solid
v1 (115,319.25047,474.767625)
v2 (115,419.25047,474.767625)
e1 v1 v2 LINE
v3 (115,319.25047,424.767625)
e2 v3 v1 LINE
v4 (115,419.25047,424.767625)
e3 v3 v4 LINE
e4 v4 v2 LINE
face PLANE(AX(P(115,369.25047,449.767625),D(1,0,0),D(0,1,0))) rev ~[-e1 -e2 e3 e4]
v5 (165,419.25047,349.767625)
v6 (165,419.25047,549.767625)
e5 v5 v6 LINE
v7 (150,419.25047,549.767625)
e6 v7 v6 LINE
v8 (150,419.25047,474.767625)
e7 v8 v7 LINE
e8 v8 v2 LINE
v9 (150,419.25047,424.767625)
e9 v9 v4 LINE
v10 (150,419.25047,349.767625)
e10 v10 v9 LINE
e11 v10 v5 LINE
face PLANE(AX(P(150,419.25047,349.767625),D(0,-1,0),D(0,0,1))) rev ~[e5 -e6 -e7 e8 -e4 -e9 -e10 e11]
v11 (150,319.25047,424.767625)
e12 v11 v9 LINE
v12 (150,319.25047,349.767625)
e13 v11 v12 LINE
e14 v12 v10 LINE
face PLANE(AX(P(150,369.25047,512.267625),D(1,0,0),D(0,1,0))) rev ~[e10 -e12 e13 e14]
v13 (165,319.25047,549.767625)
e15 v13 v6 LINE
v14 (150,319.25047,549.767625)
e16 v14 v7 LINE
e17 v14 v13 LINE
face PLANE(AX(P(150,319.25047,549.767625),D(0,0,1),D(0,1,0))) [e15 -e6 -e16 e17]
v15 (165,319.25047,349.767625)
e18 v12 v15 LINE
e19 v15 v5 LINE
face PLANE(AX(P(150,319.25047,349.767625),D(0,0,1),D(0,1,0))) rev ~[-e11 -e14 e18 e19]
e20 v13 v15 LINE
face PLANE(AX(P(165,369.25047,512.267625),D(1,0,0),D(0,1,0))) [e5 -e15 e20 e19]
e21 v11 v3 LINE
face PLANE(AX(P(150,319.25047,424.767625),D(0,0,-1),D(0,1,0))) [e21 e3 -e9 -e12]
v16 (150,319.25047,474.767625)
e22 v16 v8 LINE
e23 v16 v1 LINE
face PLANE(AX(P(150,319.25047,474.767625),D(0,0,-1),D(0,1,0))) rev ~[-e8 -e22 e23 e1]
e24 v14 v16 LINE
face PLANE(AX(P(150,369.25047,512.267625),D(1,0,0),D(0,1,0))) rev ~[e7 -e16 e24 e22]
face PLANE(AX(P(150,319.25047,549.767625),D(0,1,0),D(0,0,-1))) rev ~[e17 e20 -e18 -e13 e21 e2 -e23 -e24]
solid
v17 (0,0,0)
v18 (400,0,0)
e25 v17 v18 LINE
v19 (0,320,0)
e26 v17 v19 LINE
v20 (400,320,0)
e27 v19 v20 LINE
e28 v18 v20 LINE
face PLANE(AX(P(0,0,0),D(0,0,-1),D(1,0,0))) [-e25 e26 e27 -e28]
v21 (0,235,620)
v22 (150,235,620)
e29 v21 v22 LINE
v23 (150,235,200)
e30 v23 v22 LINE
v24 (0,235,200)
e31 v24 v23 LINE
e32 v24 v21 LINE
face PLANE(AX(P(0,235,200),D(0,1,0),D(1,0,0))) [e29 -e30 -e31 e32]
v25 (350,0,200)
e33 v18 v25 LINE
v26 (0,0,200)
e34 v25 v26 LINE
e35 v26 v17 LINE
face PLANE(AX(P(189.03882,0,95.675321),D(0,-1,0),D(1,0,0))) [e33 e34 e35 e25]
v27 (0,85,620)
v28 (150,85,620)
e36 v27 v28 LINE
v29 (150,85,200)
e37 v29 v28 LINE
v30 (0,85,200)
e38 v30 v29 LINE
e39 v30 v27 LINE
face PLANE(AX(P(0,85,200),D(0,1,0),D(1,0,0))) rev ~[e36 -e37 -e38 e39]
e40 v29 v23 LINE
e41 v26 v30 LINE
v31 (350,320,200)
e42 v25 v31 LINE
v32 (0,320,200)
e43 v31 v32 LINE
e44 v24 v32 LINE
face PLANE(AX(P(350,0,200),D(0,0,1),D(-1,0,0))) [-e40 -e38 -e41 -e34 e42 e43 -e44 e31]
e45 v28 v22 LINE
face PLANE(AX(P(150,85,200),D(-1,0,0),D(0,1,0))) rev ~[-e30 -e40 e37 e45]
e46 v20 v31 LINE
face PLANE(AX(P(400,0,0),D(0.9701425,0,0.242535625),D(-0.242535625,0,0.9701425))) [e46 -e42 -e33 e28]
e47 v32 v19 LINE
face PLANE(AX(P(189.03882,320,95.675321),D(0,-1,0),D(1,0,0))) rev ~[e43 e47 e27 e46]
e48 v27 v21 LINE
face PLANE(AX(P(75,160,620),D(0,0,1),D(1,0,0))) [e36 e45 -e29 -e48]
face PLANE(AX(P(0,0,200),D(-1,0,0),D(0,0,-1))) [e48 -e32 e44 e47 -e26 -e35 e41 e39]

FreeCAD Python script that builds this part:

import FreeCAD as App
import Part
import Sketcher
Q = App.Units.Quantity


def add_polygon(sketch, points):
    """Adds a closed chain of lines whose ends are joined by coincident constraints."""
    first, n = sketch.GeometryCount, len(points)
    for a, b in zip(points, points[1:] + points[:1]):
        sketch.addGeometry(Part.LineSegment(App.Vector(*a, 0), App.Vector(*b, 0)), False)
    for i in range(n):
        sketch.addConstraint(Sketcher.Constraint("Coincident", first + i, 2, first + (i + 1) % n, 1))

doc = App.newDocument("Part")
body = doc.addObject("PartDesign::Body", "Body")

# Sketch on XZ plane
sketch1 = body.newObject("Sketcher::SketchObject", "Sketch")
sketch1.AttachmentSupport = (doc.getObject("XZ_Plane"), [""])
sketch1.MapMode = "FlatFace"
add_polygon(sketch1, [(0, 200), (0, 0), (400, 0), (350, 200)])  # lines 0-3
sketch1.addConstraint([
    Sketcher.Constraint("Vertical", 0),
    Sketcher.Constraint("Horizontal", 1),
    Sketcher.Constraint("Horizontal", 3),
    Sketcher.Constraint("Coincident", 0, 2, -1, 1),
    Sketcher.Constraint("DistanceX", 1, 1, 1, 2, Q("400 mm")),
    Sketcher.Constraint("DistanceX", 3, 2, 3, 1, Q("350 mm")),
    Sketcher.Constraint("DistanceY", 0, 2, 0, 1, Q("200 mm")),
])
pad1 = body.newObject("PartDesign::Pad", "Pad")
pad1.Profile = sketch1
pad1.Length = 320
pad1.Reversed = True

# Sketch on XY plane
sketch2 = body.newObject("Sketcher::SketchObject", "Sketch001")
sketch2.AttachmentSupport = (doc.getObject("XY_Plane"), [""])
sketch2.MapMode = "FlatFace"
sketch2.AttachmentOffset = App.Placement(App.Vector(0, 0, 200), App.Rotation())
add_polygon(sketch2, [(0, 235), (0, 85), (150, 85), (150, 235)])  # lines 0-3
sketch2.addConstraint([
    Sketcher.Constraint("Vertical", 0),
    Sketcher.Constraint("Horizontal", 1),
    Sketcher.Constraint("Vertical", 2),
    Sketcher.Constraint("Horizontal", 3),
    Sketcher.Constraint("PointOnObject", 0, 2, -2),
    Sketcher.Constraint("Equal", 3, 0),
    Sketcher.Constraint("DistanceX", 1, 1, 1, 2, Q("150 mm")),
    Sketcher.Constraint("DistanceY", -1, 1, 0, 2, Q("85 mm")),
])
pad2 = body.newObject("PartDesign::Pad", "Pad001")
pad2.Profile = sketch2
pad2.Length = 420
body2 = doc.addObject("PartDesign::Body", "Body001")

# Sketch on YZ plane
sketch3 = body2.newObject("Sketcher::SketchObject", "Sketch002")
sketch3.AttachmentSupport = (doc.getObject("YZ_Plane001"), [""])
sketch3.MapMode = "FlatFace"
sketch3.AttachmentOffset = App.Placement(App.Vector(0, 0, 150), App.Rotation())
add_polygon(sketch3, [(319, 550), (319, 350), (419, 350), (419, 550)])  # lines 0-3
sketch3.addConstraint([
    Sketcher.Constraint("Vertical", 0),
    Sketcher.Constraint("Horizontal", 1),
    Sketcher.Constraint("Vertical", 2),
    Sketcher.Constraint("Horizontal", 3),
    Sketcher.Constraint("DistanceX", 1, 1, 1, 2, Q("100 mm")),
    Sketcher.Constraint("DistanceY", 0, 2, 0, 1, Q("200 mm")),
    Sketcher.Constraint("DistanceX", -1, 1, 0, 2, Q("319.25047 mm")),
    Sketcher.Constraint("DistanceY", -1, 1, 0, 2, Q("349.767625 mm")),
])
pad3 = body2.newObject("PartDesign::Pad", "Pad002")
pad3.Profile = sketch3
pad3.Length = 15

# Sketch on YZ plane
sketch4 = body2.newObject("Sketcher::SketchObject", "Sketch003")
sketch4.AttachmentSupport = (doc.getObject("YZ_Plane001"), [""])
sketch4.MapMode = "FlatFace"
sketch4.AttachmentOffset = App.Placement(App.Vector(0, 0, 150), App.Rotation())
add_polygon(sketch4, [(319, 475), (319, 425), (419, 425), (419, 475)])  # lines 0-3
sketch4.addConstraint([
    Sketcher.Constraint("Vertical", 0),
    Sketcher.Constraint("Horizontal", 1),
    Sketcher.Constraint("Vertical", 2),
    Sketcher.Constraint("Horizontal", 3),
    Sketcher.Constraint("DistanceX", 1, 1, 1, 2, Q("100 mm")),
    Sketcher.Constraint("DistanceY", 0, 2, 0, 1, Q("50 mm")),
    Sketcher.Constraint("DistanceX", -1, 1, 0, 2, Q("319.25047 mm")),
    Sketcher.Constraint("DistanceY", -1, 1, 0, 2, Q("424.767625 mm")),
])
pad4 = body2.newObject("PartDesign::Pad", "Pad003")
pad4.Profile = sketch4
pad4.Length = 35
pad4.Reversed = True

doc.recompute()
